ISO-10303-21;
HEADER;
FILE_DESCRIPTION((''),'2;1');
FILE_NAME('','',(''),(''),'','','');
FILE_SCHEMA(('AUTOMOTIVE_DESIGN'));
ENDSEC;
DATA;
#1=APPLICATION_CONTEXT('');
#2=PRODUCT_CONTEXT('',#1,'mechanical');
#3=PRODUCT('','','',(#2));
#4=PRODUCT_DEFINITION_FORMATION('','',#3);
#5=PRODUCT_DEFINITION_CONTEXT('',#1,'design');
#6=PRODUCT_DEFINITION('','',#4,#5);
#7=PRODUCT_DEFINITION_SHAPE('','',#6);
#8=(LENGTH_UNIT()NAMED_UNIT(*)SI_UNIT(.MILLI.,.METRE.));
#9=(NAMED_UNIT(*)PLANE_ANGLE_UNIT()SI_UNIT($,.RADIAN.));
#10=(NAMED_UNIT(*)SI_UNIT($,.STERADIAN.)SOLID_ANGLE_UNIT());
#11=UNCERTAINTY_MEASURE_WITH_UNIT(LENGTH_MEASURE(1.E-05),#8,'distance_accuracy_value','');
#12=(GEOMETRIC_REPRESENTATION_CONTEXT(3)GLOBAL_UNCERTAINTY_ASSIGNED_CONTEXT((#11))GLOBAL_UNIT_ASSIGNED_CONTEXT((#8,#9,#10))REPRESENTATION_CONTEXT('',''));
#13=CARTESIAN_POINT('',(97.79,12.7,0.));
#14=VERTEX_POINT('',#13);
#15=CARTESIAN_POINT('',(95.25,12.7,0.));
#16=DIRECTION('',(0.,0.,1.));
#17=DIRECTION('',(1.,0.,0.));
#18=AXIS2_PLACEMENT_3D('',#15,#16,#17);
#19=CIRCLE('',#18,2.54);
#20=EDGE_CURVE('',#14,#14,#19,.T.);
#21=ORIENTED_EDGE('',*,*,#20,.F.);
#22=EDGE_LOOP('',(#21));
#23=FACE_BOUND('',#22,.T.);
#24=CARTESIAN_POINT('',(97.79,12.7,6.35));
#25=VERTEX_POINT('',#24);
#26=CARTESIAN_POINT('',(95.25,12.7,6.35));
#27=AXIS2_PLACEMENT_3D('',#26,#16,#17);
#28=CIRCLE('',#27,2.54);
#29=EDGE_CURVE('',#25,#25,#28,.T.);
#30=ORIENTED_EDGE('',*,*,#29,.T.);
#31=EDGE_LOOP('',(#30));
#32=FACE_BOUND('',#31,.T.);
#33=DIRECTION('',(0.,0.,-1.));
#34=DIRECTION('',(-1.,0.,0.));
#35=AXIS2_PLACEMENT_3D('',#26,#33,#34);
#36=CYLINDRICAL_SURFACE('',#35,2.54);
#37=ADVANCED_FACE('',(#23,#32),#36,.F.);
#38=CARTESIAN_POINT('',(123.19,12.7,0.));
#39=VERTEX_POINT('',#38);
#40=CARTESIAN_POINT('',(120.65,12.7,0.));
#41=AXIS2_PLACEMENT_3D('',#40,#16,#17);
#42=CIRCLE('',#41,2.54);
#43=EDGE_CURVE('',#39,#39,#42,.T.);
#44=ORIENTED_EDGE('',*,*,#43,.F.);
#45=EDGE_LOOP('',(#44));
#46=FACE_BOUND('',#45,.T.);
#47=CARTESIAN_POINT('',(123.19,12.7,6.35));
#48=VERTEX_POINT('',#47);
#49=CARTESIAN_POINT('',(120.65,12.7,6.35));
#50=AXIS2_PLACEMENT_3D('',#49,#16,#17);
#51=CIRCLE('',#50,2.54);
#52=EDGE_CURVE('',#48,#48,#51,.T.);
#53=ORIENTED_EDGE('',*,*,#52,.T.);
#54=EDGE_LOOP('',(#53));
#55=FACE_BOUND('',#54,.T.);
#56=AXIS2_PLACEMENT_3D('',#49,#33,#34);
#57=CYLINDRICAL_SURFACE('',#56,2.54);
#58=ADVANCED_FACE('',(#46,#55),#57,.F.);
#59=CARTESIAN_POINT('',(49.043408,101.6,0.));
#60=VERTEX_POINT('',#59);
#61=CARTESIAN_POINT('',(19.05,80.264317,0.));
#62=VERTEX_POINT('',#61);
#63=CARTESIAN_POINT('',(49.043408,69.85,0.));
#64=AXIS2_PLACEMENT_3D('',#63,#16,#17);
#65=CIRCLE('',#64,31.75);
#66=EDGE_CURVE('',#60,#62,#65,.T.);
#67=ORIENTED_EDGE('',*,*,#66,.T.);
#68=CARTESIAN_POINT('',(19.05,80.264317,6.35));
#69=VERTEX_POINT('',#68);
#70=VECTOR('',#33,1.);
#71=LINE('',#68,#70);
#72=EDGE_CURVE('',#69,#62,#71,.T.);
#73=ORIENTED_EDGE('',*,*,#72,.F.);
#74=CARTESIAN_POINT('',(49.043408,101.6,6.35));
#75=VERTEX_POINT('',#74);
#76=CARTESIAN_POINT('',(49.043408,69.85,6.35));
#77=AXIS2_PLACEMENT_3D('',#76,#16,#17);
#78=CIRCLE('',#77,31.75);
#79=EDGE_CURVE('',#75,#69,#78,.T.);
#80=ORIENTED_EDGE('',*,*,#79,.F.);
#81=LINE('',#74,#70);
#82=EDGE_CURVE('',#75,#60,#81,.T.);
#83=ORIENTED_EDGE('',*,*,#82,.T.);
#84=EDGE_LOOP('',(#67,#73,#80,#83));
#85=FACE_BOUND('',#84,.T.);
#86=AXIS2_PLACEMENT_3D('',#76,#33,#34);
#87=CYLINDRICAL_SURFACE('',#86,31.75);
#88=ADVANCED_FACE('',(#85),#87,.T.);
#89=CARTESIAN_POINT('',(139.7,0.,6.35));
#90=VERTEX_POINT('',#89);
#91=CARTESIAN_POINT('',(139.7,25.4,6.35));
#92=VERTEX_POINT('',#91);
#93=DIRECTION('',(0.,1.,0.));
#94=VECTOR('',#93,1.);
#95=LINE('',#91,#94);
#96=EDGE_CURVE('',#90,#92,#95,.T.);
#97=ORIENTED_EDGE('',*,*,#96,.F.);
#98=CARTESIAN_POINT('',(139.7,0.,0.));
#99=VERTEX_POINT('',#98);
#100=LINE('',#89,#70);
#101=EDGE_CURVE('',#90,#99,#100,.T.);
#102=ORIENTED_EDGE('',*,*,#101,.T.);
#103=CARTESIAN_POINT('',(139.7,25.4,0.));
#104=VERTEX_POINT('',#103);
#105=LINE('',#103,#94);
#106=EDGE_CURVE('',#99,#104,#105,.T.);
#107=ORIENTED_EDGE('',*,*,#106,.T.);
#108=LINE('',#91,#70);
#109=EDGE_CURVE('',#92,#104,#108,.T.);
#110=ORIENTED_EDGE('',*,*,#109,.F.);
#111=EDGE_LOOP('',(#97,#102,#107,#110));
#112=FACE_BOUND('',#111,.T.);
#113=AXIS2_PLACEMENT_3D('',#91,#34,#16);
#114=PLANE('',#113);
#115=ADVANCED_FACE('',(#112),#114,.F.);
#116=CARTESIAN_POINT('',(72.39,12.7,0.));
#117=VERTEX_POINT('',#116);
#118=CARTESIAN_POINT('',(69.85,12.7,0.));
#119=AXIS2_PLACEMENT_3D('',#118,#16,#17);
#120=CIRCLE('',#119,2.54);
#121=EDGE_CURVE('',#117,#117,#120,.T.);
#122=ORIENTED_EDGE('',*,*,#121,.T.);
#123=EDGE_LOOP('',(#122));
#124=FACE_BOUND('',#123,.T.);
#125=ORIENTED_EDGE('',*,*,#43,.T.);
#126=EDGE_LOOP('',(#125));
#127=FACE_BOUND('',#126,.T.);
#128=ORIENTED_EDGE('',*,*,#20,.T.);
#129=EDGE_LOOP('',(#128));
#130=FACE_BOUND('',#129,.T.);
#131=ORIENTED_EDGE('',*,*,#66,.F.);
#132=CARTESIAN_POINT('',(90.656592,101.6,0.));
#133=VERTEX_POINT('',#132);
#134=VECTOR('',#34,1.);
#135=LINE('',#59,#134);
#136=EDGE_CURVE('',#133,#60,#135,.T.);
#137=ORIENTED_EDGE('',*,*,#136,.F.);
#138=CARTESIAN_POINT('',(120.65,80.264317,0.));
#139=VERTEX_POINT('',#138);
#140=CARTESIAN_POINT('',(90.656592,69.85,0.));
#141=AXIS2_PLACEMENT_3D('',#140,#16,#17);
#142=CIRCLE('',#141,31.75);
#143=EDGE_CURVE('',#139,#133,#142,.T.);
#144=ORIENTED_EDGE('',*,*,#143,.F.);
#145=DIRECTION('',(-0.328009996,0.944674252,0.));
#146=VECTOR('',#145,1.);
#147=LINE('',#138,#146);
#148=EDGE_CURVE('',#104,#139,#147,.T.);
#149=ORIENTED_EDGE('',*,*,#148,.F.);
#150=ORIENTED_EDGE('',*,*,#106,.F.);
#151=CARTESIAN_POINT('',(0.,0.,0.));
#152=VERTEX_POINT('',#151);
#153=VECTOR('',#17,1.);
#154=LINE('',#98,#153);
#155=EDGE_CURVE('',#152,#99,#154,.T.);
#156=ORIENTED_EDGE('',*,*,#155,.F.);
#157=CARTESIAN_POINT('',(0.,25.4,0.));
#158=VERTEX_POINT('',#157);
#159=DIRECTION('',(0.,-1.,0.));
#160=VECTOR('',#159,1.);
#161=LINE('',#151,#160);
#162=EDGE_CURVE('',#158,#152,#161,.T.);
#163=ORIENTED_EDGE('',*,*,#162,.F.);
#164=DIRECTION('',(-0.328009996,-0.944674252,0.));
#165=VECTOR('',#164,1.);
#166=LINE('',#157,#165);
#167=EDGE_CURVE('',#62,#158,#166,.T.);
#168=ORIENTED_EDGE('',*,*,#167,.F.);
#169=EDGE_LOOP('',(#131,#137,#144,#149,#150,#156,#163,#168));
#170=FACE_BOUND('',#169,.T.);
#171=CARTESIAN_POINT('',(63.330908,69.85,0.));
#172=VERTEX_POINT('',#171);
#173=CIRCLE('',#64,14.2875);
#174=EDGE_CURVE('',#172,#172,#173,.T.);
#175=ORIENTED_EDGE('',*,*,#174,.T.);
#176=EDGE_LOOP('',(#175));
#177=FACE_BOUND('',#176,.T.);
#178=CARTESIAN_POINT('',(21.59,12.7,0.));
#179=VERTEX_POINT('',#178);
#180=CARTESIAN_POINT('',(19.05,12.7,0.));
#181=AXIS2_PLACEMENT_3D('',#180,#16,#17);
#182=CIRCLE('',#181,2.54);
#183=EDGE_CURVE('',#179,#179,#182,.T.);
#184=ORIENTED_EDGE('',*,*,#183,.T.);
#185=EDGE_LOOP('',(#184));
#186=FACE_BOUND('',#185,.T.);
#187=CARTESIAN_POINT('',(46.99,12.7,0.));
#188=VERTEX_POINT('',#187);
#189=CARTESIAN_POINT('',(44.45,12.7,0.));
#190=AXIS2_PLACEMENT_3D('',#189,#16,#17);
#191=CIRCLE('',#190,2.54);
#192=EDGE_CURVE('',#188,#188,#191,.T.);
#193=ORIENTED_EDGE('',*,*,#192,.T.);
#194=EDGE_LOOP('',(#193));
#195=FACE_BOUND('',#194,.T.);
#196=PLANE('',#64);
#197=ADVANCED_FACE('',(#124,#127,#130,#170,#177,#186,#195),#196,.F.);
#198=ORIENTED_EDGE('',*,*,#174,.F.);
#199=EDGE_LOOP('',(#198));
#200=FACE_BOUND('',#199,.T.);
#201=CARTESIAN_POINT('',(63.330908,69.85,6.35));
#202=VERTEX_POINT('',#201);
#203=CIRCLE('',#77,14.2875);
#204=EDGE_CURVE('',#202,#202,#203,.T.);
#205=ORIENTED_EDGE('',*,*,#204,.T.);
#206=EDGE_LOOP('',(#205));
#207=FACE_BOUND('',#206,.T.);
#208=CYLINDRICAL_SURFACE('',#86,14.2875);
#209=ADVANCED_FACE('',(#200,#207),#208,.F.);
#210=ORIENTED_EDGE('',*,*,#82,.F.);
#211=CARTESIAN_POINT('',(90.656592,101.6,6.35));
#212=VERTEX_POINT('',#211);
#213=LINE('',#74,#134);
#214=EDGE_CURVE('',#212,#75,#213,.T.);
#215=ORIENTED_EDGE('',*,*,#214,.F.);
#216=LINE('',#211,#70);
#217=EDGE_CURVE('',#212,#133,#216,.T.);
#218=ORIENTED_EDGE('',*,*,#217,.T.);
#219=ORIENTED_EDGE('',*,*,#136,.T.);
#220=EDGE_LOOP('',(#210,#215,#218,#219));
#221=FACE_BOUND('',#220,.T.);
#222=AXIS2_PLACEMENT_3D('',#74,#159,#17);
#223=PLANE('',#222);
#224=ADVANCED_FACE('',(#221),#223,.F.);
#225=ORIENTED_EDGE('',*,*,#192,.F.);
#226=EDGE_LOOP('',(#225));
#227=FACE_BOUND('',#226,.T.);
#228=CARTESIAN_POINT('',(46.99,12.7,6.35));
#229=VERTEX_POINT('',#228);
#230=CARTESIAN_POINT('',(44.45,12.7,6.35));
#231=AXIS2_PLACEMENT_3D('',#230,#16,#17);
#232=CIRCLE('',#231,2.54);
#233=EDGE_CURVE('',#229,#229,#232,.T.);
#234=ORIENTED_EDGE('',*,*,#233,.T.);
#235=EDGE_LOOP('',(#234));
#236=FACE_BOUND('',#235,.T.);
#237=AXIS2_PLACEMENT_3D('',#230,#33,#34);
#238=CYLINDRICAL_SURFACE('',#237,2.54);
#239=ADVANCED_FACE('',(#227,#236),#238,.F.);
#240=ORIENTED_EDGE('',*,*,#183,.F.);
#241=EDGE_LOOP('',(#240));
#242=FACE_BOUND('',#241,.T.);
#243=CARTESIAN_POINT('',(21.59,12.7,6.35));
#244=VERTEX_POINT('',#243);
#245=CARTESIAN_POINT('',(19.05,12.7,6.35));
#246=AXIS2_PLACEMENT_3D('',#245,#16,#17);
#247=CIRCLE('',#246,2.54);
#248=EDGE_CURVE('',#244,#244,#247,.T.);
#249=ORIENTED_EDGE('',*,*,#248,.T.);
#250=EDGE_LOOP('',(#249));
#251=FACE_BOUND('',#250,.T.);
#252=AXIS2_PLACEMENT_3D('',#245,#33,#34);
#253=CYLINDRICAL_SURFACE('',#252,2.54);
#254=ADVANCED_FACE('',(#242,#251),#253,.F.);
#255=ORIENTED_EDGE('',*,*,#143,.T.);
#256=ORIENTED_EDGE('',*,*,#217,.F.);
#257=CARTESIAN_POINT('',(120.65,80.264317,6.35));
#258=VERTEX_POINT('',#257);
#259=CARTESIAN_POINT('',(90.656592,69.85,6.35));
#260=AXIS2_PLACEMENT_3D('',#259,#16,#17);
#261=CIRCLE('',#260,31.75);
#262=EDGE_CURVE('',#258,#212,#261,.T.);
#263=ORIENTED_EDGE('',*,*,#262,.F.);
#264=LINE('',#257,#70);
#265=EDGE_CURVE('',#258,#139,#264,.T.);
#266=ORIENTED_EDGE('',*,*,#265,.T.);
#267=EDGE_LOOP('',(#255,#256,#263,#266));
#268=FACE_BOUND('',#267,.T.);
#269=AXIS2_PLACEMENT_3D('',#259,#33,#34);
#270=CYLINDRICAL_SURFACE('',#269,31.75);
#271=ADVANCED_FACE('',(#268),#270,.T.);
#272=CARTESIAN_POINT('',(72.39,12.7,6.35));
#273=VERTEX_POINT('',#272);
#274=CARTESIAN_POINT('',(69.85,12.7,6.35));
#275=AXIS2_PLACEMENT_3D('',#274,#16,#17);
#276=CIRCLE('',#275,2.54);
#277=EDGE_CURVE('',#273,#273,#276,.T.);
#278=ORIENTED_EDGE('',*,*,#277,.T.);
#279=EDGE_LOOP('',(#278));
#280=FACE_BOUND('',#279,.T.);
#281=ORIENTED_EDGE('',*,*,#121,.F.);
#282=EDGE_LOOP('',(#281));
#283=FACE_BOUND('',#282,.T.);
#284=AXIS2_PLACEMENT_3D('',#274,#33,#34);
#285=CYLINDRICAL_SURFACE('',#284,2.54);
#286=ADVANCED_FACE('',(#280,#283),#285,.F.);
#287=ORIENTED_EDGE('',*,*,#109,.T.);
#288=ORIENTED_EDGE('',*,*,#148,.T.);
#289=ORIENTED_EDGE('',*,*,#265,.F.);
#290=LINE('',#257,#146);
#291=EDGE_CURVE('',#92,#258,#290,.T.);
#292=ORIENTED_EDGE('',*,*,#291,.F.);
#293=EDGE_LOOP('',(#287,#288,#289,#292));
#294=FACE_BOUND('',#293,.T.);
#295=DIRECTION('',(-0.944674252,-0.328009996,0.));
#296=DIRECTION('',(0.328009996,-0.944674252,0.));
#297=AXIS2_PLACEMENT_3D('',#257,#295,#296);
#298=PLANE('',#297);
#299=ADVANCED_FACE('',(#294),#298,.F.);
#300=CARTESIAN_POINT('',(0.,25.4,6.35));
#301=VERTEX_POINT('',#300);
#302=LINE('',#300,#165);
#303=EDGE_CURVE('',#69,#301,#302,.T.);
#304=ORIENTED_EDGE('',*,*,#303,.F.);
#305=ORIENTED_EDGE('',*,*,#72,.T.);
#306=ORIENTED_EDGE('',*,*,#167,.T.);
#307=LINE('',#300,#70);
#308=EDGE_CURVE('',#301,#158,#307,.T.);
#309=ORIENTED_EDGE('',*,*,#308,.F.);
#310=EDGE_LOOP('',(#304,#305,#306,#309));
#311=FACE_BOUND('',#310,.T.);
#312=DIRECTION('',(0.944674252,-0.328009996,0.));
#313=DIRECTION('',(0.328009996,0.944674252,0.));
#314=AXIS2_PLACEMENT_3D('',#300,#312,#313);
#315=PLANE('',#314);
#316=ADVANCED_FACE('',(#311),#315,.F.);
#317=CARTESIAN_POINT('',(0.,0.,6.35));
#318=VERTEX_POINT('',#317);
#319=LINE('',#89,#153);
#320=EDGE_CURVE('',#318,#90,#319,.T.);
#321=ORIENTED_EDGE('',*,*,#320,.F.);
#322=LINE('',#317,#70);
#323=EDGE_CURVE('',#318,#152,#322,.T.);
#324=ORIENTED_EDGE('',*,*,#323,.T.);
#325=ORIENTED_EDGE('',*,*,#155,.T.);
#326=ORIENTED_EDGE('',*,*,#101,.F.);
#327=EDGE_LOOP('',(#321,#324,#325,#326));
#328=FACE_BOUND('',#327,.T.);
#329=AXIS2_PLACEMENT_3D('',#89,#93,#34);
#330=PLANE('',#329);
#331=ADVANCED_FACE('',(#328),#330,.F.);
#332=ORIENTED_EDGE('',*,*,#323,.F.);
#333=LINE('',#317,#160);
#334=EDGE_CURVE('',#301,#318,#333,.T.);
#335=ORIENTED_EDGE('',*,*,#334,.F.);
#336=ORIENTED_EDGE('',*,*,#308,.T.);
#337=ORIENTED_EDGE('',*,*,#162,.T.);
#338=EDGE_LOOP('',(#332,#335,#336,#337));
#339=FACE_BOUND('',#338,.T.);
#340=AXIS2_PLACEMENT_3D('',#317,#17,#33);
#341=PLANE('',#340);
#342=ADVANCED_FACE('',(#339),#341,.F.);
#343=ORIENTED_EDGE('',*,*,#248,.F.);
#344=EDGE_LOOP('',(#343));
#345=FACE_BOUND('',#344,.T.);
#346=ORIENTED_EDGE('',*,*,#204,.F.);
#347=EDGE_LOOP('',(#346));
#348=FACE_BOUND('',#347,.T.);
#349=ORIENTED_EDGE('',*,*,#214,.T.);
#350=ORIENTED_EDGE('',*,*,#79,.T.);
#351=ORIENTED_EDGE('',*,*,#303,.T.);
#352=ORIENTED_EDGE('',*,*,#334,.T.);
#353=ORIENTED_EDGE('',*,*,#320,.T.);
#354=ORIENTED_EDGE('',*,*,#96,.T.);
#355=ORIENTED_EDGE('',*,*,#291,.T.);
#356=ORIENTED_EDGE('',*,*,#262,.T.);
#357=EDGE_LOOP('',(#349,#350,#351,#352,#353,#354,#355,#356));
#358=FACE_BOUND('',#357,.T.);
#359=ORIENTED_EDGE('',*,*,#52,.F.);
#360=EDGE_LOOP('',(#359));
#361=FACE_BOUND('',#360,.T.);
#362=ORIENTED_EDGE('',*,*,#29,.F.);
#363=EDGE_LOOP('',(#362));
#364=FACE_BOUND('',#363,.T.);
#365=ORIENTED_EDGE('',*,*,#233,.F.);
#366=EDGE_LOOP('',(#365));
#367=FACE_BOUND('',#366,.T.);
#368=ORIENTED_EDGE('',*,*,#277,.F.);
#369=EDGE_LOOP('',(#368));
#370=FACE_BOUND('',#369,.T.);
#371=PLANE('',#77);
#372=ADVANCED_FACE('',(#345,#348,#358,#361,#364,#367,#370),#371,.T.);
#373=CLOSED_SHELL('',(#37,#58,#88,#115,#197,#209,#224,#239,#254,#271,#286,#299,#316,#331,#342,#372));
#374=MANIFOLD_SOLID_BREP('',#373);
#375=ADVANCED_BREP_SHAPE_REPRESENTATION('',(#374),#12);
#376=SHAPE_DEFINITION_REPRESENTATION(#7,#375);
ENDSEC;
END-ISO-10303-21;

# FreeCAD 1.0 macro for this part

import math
import FreeCAD as App
import Part
import Sketcher
from FreeCAD import Vector
Q = App.Units.Quantity

doc = App.newDocument("Part")
body = doc.addObject("PartDesign::Body", "Body")

# Sketch on XY plane
sketch1 = doc.addObject("Sketcher::SketchObject", "Sketch")
body.addObject(sketch1)
sketch1.AttachmentSupport = (doc.XY_Plane, [""])
sketch1.MapMode = "FlatFace"
sketch1.addGeometry([
    Part.LineSegment(Vector(90.7, 101.6, 0), Vector(49, 101.6, 0)),  # 0
    Part.ArcOfCircle(Part.Circle(Vector(49, 69.8, 0), Vector(0, 0, 1), 31.8), math.radians(90), math.radians(161)),  # 1
    Part.LineSegment(Vector(19.1, 80.3, 0), Vector(0, 25.4, 0)),  # 2
    Part.LineSegment(Vector(0, 25.4, 0), Vector(0, 0, 0)),  # 3
    Part.LineSegment(Vector(0, 0, 0), Vector(139.7, 0, 0)),  # 4
    Part.LineSegment(Vector(139.7, 0, 0), Vector(139.7, 25.4, 0)),  # 5
    Part.LineSegment(Vector(139.7, 25.4, 0), Vector(120.7, 80.3, 0)),  # 6
    Part.ArcOfCircle(Part.Circle(Vector(90.7, 69.8, 0), Vector(0, 0, 1), 31.8), math.radians(19), math.radians(90)),  # 7
    Part.Circle(Vector(120.7, 12.7, 0), Vector(0, 0, 1), 2.5),  # 8
    Part.Circle(Vector(95.2, 12.7, 0), Vector(0, 0, 1), 2.5),  # 9
    Part.Circle(Vector(69.8, 12.7, 0), Vector(0, 0, 1), 2.5),  # 10
    Part.Circle(Vector(44.5, 12.7, 0), Vector(0, 0, 1), 2.5),  # 11
    Part.Circle(Vector(19.1, 12.7, 0), Vector(0, 0, 1), 2.5),  # 12
    Part.Circle(Vector(49, 69.8, 0), Vector(0, 0, 1), 14.3),  # 13
], False)
sketch1.addConstraint([
    Sketcher.Constraint("Tangent", 0, 2, 1, 1),
    Sketcher.Constraint("Tangent", 1, 2, 2, 1),
    Sketcher.Constraint("Coincident", 2, 2, 3, 1),
    Sketcher.Constraint("Coincident", 3, 2, 4, 1),
    Sketcher.Constraint("Coincident", 4, 2, 5, 1),
    Sketcher.Constraint("Coincident", 5, 2, 6, 1),
    Sketcher.Constraint("Tangent", 6, 2, 7, 1),
    Sketcher.Constraint("Tangent", 7, 2, 0, 1),
    Sketcher.Constraint("Horizontal", 0),
    Sketcher.Constraint("Vertical", 3),
    Sketcher.Constraint("Horizontal", 4),
    Sketcher.Constraint("Vertical", 5),
    Sketcher.Constraint("Coincident", 3, 2, -1, 1),
    Sketcher.Constraint("Coincident", 13, 3, 1, 3),
    Sketcher.Constraint("Equal", 1, 7),
    Sketcher.Constraint("Equal", 8, 9),
    Sketcher.Constraint("Equal", 9, 10),
    Sketcher.Constraint("Equal", 10, 11),
    Sketcher.Constraint("Equal", 11, 12),
    Sketcher.Constraint("Horizontal", 8, 3, 9, 3),
    Sketcher.Constraint("Horizontal", 9, 3, 10, 3),
    Sketcher.Constraint("Horizontal", 10, 3, 11, 3),
    Sketcher.Constraint("Horizontal", 11, 3, 12, 3),
    Sketcher.Constraint("Horizontal", 2, 2, 5, 2),
    Sketcher.Constraint("Horizontal", 1, 2, 6, 2),
    Sketcher.Constraint("Vertical", 12, 3, 1, 2),
    Sketcher.Constraint("Vertical", 8, 3, 6, 2),
    Sketcher.Constraint("Diameter", 8, Q("0.2 in")),
    Sketcher.Constraint("DistanceY", 3, 2, 3, 1, Q("1 in")),
    Sketcher.Constraint("Radius", 1, Q("1.25 in")),
    Sketcher.Constraint("Diameter", 13, Q("1.125 in")),
    Sketcher.Constraint("DistanceX", 4, 1, 4, 2, Q("5.5 in")),
    Sketcher.Constraint("DistanceY", -1, 1, 0, 2, Q("4 in")),
    Sketcher.Constraint("DistanceX", 9, 3, 8, 3, Q("1 in")),
    Sketcher.Constraint("DistanceX", 10, 3, 9, 3, Q("1 in")),
    Sketcher.Constraint("DistanceX", 11, 3, 10, 3, Q("1 in")),
    Sketcher.Constraint("DistanceX", 12, 3, 11, 3, Q("1 in")),
    Sketcher.Constraint("DistanceY", -1, 1, 8, 3, Q("0.5 in")),
])
pad1 = doc.addObject("PartDesign::Pad", "Pad")
body.addObject(pad1)
pad1.Profile = sketch1
pad1.Length = Q("0.25 in")

doc.recompute()
